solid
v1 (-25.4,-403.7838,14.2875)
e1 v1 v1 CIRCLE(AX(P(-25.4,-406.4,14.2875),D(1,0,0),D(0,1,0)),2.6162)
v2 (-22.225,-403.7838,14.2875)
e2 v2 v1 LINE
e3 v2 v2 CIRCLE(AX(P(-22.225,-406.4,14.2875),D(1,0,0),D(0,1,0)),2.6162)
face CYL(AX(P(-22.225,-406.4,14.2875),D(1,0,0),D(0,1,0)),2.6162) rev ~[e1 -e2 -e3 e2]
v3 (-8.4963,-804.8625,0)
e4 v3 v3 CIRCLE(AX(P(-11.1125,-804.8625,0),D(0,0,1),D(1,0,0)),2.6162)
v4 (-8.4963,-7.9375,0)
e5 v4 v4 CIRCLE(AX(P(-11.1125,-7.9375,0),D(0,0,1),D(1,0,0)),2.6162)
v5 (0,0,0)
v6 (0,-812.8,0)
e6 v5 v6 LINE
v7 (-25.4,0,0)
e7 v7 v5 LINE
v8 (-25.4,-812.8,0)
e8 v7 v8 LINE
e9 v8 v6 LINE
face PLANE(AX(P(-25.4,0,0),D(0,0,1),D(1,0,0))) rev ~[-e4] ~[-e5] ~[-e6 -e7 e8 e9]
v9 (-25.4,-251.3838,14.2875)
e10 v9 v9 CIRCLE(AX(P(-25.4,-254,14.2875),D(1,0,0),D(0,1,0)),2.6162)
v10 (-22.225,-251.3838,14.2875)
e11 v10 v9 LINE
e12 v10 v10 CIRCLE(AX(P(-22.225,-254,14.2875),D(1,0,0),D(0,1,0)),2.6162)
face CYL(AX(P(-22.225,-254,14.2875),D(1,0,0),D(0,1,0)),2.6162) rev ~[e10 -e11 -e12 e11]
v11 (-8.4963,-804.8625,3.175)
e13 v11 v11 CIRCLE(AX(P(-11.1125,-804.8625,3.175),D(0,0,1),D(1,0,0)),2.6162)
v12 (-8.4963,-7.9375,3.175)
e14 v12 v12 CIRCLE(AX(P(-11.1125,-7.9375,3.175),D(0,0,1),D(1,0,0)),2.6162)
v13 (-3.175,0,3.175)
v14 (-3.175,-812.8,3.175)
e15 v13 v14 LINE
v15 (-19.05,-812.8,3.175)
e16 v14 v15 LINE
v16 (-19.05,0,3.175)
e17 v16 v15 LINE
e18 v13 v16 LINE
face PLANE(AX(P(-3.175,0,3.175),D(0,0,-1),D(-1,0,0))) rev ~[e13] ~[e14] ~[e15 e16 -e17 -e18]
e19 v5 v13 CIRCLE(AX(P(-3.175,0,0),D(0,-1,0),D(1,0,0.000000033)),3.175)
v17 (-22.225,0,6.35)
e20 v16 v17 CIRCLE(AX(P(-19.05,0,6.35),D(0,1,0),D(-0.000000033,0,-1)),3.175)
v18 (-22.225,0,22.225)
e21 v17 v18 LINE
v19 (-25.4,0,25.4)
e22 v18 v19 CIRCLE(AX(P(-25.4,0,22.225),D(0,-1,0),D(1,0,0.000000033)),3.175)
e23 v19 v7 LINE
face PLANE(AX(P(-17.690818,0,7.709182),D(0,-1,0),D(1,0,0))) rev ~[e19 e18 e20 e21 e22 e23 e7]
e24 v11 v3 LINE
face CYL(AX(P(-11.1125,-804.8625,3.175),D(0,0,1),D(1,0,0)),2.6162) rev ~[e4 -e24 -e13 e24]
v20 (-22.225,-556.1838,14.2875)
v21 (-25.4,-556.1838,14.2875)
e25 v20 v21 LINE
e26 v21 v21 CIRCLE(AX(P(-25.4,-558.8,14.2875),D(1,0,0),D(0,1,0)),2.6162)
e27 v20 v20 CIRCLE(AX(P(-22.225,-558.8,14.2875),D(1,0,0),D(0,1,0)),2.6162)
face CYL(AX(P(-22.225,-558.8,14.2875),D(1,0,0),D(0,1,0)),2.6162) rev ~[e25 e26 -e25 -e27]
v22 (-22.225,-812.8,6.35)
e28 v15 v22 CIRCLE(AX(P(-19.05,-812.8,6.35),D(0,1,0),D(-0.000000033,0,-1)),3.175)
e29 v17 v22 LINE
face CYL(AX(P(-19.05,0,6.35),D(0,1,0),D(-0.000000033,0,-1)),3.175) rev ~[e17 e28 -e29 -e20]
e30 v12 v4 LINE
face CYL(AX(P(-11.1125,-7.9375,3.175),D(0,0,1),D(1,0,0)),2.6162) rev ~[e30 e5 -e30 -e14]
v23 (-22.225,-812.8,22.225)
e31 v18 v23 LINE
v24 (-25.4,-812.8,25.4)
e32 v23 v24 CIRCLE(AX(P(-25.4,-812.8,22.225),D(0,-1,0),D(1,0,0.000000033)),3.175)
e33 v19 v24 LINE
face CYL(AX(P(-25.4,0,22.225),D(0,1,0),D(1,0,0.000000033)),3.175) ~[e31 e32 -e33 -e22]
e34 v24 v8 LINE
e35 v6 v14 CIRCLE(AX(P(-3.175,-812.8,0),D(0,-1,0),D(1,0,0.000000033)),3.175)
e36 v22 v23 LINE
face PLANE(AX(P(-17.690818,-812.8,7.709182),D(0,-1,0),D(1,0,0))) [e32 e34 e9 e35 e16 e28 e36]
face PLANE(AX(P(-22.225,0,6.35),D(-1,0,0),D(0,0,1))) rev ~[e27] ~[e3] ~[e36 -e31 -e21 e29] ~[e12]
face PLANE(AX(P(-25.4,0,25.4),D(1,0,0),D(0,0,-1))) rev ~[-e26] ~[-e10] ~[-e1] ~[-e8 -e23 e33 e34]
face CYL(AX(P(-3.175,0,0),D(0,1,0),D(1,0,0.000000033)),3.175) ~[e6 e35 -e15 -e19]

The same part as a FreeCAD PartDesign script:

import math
import FreeCAD as App
import Part
import Sketcher

V = App.Vector
Q = App.Units.Quantity

doc = App.newDocument("Part")
body = doc.addObject("PartDesign::Body", "Body")

sketch1 = body.newObject("Sketcher::SketchObject", "Sketch")
sketch1.AttachmentSupport = (doc.getObject("XZ_Plane"), [""])
sketch1.MapMode = "FlatFace"
sketch1.addGeometry([
    Part.LineSegment(V(-25.4, 0, 0), V(0, 0, 0)),
    Part.ArcOfCircle(Part.Circle(V(-3.2, 0, 0), V(0, 0, 1), 3.2), math.radians(0), math.radians(90)),
    Part.LineSegment(V(-3.2, 3.2, 0), V(-19.1, 3.2, 0)),
    Part.ArcOfCircle(Part.Circle(V(-19, 6.4, 0), V(0, 0, 1), 3.2), math.radians(-180), math.radians(-90)),
    Part.LineSegment(V(-22.2, 6.3, 0), V(-22.2, 22.2, 0)),
    Part.ArcOfCircle(Part.Circle(V(-25.4, 22.2, 0), V(0, 0, 1), 3.2), math.radians(0), math.radians(90)),
    Part.LineSegment(V(-25.4, 25.4, 0), V(-25.4, 0, 0)),
], False)
sketch1.addConstraint([
    Sketcher.Constraint("Coincident", 0, 2, 1, 1),
    Sketcher.Constraint("Tangent", 1, 2, 2, 1),
    Sketcher.Constraint("Tangent", 2, 2, 3, 2),
    Sketcher.Constraint("Tangent", 3, 1, 4, 1),
    Sketcher.Constraint("Tangent", 4, 2, 5, 1),
    Sketcher.Constraint("Coincident", 5, 2, 6, 1),
    Sketcher.Constraint("Coincident", 6, 2, 0, 1),
    Sketcher.Constraint("Horizontal", 0),
    Sketcher.Constraint("Horizontal", 2),
    Sketcher.Constraint("Vertical", 4),
    Sketcher.Constraint("Vertical", 6),
    Sketcher.Constraint("Coincident", 0, 2, -1, 1),
    Sketcher.Constraint("Equal", 1, 3),
    Sketcher.Constraint("Equal", 3, 5),
    Sketcher.Constraint("PointOnObject", 1, 3, -1),
    Sketcher.Constraint("Equal", 2, 4),
    Sketcher.Constraint("Equal", 0, 6),
    Sketcher.Constraint("DistanceX", 0, 1, 0, 2, Q("1 in")),
    Sketcher.Constraint("Radius", 1, Q("0.125 in")),
])
pad1 = body.newObject("PartDesign::Pad", "Pad")
pad1.Profile = sketch1
pad1.Length = Q("32 in")

sketch2 = body.newObject("Sketcher::SketchObject", "Sketch001")
sketch2.AttachmentSupport = (doc.getObject("YZ_Plane"), [""])
sketch2.MapMode = "FlatFace"
sketch2.AttachmentOffset = App.Placement(V(0, 0, -0.875 * 25.4), App.Rotation())
sketch2.addGeometry([
    Part.Circle(V(-558.8, 14.3, 0), V(0, 0, 1), 2.6),
    Part.Circle(V(-406.4, 14.3, 0), V(0, 0, 1), 2.6),
    Part.Circle(V(-254, 14.3, 0), V(0, 0, 1), 2.6),
], False)
sketch2.addConstraint([
    Sketcher.Constraint("Equal", 0, 1),
    Sketcher.Constraint("Equal", 1, 2),
    Sketcher.Constraint("Horizontal", 0, 3, 1, 3),
    Sketcher.Constraint("Horizontal", 1, 3, 2, 3),
    Sketcher.Constraint("Diameter", 0, Q("0.206 in")),
    Sketcher.Constraint("DistanceX", 0, 3, -1, 1, Q("22 in")),
    Sketcher.Constraint("DistanceX", 1, 3, -1, 1, Q("16 in")),
    Sketcher.Constraint("DistanceX", 2, 3, -1, 1, Q("10 in")),
    Sketcher.Constraint("DistanceY", -1, 1, 0, 3, Q("0.5625 in")),
])
pocket1 = body.newObject("PartDesign::Pocket", "Pocket")
pocket1.Profile = sketch2
pocket1.Type = "ThroughAll"

sketch3 = body.newObject("Sketcher::SketchObject", "Sketch002")
sketch3.AttachmentSupport = (doc.getObject("XY_Plane"), [""])
sketch3.MapMode = "FlatFace"
sketch3.AttachmentOffset = App.Placement(V(0, 0, 0.125 * 25.4), App.Rotation())
sketch3.addGeometry([
    Part.Circle(V(-11.1, -804.9, 0), V(0, 0, 1), 2.6),
    Part.Circle(V(-11.1, -7.9, 0), V(0, 0, 1), 2.6),
], False)
sketch3.addConstraint([
    Sketcher.Constraint("Equal", 0, 1),
    Sketcher.Constraint("Vertical", 0, 3, 1, 3),
    Sketcher.Constraint("Diameter", 0, Q("0.206 in")),
    Sketcher.Constraint("DistanceX", 0, 3, -1, 1, Q("0.4375 in")),
    Sketcher.Constraint("DistanceY", 0, 3, -1, 1, Q("31.6875 in")),
    Sketcher.Constraint("DistanceY", 1, 3, -1, 1, Q("0.3125 in")),
])
pocket2 = body.newObject("PartDesign::Pocket", "Pocket001")
pocket2.Profile = sketch3
pocket2.Type = "ThroughAll"

doc.recompute()
